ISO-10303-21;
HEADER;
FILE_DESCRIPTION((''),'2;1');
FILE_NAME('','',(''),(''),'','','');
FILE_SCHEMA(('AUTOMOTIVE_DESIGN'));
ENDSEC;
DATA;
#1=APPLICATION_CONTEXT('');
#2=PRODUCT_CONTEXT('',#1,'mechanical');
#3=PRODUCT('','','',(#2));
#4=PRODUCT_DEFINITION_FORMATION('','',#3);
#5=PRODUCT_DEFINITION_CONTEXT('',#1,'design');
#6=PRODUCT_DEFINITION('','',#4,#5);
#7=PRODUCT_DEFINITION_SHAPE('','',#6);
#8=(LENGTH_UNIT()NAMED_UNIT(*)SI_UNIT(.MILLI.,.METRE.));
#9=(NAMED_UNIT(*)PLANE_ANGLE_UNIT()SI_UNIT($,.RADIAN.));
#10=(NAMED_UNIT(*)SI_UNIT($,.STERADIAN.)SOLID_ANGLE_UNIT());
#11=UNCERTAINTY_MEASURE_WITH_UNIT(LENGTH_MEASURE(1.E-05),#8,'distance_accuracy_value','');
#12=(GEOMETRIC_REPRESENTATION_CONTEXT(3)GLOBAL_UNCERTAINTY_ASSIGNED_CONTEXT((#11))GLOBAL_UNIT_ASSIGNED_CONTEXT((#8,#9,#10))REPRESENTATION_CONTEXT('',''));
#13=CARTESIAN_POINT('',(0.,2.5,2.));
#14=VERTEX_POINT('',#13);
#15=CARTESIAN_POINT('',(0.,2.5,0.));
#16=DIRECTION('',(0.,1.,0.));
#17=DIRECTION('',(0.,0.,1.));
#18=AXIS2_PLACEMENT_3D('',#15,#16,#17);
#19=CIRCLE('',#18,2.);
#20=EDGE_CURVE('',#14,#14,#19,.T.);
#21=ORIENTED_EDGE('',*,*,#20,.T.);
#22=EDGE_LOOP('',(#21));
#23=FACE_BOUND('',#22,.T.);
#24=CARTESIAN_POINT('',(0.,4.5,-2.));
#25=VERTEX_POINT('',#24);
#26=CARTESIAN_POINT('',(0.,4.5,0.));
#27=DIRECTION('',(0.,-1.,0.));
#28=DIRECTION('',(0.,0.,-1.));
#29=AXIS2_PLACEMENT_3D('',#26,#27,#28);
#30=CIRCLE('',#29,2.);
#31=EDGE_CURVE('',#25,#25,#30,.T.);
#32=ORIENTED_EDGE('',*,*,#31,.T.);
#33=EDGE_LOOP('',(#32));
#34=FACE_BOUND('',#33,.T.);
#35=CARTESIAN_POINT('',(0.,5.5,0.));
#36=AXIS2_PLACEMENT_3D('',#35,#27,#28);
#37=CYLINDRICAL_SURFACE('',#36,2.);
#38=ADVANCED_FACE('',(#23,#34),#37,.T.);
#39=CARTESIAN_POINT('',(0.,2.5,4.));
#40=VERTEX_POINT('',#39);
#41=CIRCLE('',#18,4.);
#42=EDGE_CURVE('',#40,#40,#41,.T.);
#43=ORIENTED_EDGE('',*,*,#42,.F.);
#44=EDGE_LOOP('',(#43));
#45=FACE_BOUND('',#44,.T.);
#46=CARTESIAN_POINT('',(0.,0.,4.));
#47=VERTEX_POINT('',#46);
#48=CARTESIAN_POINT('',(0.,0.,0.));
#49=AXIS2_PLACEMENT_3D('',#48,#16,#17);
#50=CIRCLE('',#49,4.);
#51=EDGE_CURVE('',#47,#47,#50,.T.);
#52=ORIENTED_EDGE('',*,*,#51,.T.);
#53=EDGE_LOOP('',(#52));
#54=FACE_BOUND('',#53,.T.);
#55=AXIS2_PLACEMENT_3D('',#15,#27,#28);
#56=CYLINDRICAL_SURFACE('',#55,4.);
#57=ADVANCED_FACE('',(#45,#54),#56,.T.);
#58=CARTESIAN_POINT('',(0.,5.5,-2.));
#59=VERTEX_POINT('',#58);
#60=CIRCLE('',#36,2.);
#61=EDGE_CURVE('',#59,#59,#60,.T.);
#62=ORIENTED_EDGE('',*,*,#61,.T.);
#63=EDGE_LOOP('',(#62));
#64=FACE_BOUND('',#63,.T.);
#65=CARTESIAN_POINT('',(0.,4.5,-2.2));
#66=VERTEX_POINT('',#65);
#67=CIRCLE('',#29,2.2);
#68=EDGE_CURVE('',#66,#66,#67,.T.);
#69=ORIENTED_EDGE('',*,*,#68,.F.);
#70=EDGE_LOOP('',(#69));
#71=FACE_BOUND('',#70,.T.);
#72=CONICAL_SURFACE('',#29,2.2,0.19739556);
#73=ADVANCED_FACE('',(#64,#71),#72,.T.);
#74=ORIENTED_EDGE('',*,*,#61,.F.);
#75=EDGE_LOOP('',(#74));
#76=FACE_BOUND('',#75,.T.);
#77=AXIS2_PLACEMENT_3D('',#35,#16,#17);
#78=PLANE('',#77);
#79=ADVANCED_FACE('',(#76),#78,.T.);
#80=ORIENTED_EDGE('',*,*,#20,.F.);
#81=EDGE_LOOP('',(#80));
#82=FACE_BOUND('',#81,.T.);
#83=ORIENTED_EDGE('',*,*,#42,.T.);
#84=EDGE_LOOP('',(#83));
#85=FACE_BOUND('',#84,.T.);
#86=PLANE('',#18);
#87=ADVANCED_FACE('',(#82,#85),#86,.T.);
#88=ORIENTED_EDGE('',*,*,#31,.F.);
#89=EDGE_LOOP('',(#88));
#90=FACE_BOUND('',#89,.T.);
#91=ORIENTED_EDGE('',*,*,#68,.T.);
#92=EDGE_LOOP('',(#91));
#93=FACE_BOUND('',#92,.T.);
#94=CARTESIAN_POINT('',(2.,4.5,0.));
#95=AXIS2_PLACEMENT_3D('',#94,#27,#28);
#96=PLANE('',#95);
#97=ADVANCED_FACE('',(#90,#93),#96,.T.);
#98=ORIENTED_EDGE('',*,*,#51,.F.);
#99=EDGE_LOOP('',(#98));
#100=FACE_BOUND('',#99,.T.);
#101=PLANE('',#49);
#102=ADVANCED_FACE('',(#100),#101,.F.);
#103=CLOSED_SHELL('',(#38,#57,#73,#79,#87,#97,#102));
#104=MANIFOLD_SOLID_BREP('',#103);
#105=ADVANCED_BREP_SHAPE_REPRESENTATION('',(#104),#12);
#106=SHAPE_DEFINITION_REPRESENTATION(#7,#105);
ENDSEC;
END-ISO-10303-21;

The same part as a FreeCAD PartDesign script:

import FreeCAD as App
import Part
import Sketcher

V = App.Vector


def add_polygon(sketch, points):
    """Adds a closed chain of lines whose ends are joined by coincident constraints."""
    first, n = sketch.GeometryCount, len(points)
    for a, b in zip(points, points[1:] + points[:1]):
        sketch.addGeometry(Part.LineSegment(App.Vector(*a, 0), App.Vector(*b, 0)), False)
    for i in range(n):
        sketch.addConstraint(Sketcher.Constraint("Coincident", first + i, 2, first + (i + 1) % n, 1))

doc = App.newDocument("Part")
body = doc.addObject("PartDesign::Body", "Body")

sketch1 = body.newObject("Sketcher::SketchObject", "Sketch")
sketch1.AttachmentSupport = (doc.getObject("XZ_Plane"), [""])
sketch1.MapMode = "FlatFace"
sketch1.addGeometry(Part.Circle(V(0, 0, 0), V(0, 0, 1), 4), False)
sketch1.addConstraint([
    Sketcher.Constraint("Coincident", 0, 3, -1, 1),
    Sketcher.Constraint("Diameter", 0, 8.0),
])
pad1 = body.newObject("PartDesign::Pad", "Pad")
pad1.Profile = sketch1
pad1.Length = 2.5
pad1.Reversed = True

sketch2 = body.newObject("Sketcher::SketchObject", "Sketch001")
sketch2.AttachmentSupport = (doc.getObject("XZ_Plane"), [""])
sketch2.MapMode = "FlatFace"
sketch2.AttachmentOffset = App.Placement(V(0, 0, -2.5), App.Rotation())
sketch2.addGeometry(Part.Circle(V(0, 0, 0), V(0, 0, 1), 2), False)
sketch2.addConstraint([
    Sketcher.Constraint("Coincident", 0, 3, -1, 1),
    Sketcher.Constraint("Diameter", 0, 4.0),
])
pad2 = body.newObject("PartDesign::Pad", "Pad001")
pad2.Profile = sketch2
pad2.Length = 3
pad2.Reversed = True

sketch3 = body.newObject("Sketcher::SketchObject", "Sketch002")
sketch3.AttachmentSupport = (doc.getObject("XY_Plane"), [""])
sketch3.MapMode = "FlatFace"
add_polygon(sketch3, [(2, 5.5), (2, 4.5), (2.2, 4.5)])
sketch3.addConstraint([
    Sketcher.Constraint("Vertical", 0),
    Sketcher.Constraint("Horizontal", 1),
    Sketcher.Constraint("DistanceY", 0, 2, 0, 1, 1.0),
    Sketcher.Constraint("DistanceX", 1, 1, 1, 2, 0.2),
    Sketcher.Constraint("DistanceX", -1, 1, 0, 2, 2.0),
    Sketcher.Constraint("DistanceY", -1, 1, 0, 2, 4.5),
])
revolution = body.newObject("PartDesign::Revolution", "Revolution")
revolution.Profile = sketch3
revolution.ReferenceAxis = (sketch3, ["V_Axis"])
revolution.Angle = 360

doc.recompute()
